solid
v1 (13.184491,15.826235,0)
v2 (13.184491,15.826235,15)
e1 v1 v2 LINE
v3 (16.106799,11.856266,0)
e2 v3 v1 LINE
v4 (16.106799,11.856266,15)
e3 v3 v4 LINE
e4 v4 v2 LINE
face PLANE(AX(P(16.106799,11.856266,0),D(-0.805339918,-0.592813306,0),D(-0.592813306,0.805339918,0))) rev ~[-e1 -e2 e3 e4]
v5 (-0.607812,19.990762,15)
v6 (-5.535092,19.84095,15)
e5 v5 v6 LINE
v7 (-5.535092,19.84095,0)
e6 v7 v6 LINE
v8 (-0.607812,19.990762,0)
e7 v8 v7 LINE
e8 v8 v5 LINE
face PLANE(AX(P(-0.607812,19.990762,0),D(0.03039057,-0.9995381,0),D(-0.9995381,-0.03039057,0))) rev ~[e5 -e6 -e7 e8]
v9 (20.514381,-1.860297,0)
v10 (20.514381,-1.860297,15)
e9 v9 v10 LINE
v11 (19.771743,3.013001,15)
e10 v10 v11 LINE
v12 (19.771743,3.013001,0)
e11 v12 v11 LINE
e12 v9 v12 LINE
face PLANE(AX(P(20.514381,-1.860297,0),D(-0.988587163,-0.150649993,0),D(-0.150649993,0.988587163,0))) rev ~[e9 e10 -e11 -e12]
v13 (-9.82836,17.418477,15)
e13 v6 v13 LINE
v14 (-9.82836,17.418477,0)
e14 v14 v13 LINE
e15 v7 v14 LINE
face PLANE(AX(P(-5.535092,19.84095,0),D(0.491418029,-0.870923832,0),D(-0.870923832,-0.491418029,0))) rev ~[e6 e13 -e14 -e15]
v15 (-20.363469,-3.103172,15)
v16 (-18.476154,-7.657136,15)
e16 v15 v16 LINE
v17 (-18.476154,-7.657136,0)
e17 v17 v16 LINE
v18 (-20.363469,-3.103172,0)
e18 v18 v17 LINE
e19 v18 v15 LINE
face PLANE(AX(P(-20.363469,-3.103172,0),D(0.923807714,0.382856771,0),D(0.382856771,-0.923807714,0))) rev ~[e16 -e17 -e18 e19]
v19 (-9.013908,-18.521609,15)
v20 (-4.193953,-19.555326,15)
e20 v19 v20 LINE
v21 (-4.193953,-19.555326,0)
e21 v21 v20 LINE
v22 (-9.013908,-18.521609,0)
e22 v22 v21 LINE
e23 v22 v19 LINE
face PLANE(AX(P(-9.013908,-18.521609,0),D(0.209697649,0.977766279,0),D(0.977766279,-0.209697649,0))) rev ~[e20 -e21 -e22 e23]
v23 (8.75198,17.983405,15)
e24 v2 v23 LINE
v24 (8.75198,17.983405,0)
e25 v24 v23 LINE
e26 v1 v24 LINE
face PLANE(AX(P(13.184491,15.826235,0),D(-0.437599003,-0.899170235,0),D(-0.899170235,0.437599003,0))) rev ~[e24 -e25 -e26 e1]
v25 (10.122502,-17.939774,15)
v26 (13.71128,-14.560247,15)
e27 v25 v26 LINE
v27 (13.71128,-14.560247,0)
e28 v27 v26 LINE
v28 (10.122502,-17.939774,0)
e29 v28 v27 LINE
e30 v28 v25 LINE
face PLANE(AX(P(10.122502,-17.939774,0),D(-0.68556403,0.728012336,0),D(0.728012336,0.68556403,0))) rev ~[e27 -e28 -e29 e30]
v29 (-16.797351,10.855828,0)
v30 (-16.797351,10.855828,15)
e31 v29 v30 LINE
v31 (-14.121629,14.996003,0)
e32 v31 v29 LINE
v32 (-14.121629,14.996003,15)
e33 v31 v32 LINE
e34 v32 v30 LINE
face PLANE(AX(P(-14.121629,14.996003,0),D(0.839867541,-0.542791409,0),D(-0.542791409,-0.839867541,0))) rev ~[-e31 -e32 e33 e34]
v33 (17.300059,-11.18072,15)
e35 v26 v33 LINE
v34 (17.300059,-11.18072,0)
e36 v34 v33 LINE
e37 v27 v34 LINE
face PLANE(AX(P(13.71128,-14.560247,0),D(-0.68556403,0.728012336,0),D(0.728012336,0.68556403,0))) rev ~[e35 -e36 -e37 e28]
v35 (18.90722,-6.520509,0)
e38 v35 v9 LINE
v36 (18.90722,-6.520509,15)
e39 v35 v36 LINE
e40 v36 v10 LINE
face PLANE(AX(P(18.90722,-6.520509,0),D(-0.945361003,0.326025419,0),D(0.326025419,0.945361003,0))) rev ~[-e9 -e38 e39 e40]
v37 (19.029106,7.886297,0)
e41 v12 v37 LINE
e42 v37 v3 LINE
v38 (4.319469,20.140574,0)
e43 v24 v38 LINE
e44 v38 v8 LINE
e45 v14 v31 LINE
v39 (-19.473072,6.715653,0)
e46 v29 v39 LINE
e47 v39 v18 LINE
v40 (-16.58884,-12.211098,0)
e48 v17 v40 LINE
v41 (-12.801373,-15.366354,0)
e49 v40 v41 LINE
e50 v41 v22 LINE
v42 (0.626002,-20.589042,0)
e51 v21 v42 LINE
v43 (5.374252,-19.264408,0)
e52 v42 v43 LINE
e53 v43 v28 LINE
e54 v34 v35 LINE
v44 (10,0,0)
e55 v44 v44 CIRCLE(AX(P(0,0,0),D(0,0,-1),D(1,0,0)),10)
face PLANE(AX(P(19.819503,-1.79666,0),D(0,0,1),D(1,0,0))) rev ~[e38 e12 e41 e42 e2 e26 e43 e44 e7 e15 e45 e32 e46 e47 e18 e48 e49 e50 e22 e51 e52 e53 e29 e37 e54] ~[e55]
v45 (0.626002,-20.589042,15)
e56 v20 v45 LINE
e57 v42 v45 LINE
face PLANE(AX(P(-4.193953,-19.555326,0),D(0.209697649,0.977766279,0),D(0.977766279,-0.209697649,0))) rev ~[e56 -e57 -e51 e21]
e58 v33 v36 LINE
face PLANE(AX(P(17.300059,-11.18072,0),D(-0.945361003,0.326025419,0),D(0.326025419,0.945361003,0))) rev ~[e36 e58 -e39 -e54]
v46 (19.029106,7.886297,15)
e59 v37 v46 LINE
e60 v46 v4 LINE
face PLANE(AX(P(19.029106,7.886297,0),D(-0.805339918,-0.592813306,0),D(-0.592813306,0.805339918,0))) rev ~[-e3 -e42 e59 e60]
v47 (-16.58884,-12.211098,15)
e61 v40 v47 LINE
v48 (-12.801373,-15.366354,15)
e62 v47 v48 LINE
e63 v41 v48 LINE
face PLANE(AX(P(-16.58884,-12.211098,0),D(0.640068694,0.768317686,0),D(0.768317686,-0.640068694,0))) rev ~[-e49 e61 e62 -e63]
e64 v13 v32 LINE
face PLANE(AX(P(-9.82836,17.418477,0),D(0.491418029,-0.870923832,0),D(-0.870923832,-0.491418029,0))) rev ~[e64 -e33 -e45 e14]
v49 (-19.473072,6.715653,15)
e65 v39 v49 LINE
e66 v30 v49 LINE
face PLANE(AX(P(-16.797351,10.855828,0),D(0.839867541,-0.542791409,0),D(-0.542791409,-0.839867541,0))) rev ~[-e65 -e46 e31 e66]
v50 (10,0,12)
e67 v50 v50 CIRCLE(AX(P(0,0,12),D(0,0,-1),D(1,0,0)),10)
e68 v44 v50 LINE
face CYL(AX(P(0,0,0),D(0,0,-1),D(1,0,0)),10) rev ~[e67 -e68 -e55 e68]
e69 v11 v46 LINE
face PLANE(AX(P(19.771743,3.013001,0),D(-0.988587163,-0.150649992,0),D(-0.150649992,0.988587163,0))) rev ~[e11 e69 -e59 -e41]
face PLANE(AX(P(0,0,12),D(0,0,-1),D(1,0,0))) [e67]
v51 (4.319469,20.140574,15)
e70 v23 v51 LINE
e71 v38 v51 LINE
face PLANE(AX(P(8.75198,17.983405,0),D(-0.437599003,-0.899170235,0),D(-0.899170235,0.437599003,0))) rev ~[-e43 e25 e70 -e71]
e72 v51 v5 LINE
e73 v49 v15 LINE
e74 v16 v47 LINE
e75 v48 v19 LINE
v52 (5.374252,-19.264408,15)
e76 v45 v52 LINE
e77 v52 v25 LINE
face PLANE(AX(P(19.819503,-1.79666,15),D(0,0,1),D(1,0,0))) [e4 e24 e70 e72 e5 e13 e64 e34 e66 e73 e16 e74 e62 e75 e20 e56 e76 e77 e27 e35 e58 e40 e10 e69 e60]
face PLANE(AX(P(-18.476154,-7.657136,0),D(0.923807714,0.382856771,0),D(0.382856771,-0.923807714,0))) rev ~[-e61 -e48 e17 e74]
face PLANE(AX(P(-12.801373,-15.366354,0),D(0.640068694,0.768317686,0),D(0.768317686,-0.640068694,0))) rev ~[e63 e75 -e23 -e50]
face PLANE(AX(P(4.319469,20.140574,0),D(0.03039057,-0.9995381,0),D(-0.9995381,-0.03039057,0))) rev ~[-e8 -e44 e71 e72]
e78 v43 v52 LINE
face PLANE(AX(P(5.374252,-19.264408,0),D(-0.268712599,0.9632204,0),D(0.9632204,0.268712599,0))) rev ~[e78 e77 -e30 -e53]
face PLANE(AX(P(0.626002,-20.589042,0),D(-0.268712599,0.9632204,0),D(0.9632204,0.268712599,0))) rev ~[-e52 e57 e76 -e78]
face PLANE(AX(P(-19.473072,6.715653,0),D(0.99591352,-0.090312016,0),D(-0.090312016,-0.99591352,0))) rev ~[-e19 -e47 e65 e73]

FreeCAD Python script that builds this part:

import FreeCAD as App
import Part
import Sketcher
from FreeCAD import Vector
Q = App.Units.Quantity

doc = App.newDocument("Part")
body = doc.addObject("PartDesign::Body", "Body")

# Sketch on XY plane
sketch1 = body.newObject("Sketcher::SketchObject", "Sketch")
sketch1.AttachmentSupport = (doc.getObject("XY_Plane"), [""])
sketch1.MapMode = "FlatFace"
sketch1.addGeometry([
    Part.LineSegment(Vector(18.90722, -6.520509, 0), Vector(20.514381, -1.860297, 0)),  # 0
    Part.LineSegment(Vector(20.514381, -1.860297, 0), Vector(19.771743, 3.013001, 0)),  # 1
    Part.LineSegment(Vector(19.771743, 3.013001, 0), Vector(19.029106, 7.886297, 0)),  # 2
    Part.LineSegment(Vector(19.029106, 7.886297, 0), Vector(16.106799, 11.856266, 0)),  # 3
    Part.LineSegment(Vector(16.106799, 11.856266, 0), Vector(13.184491, 15.826235, 0)),  # 4
    Part.LineSegment(Vector(13.184491, 15.826235, 0), Vector(8.75198, 17.983405, 0)),  # 5
    Part.LineSegment(Vector(8.75198, 17.983405, 0), Vector(4.319469, 20.140574, 0)),  # 6
    Part.LineSegment(Vector(4.319469, 20.140574, 0), Vector(-0.607812, 19.990762, 0)),  # 7
    Part.LineSegment(Vector(-0.607812, 19.990762, 0), Vector(-5.535092, 19.84095, 0)),  # 8
    Part.LineSegment(Vector(-5.535092, 19.84095, 0), Vector(-9.82836, 17.418477, 0)),  # 9
    Part.LineSegment(Vector(-9.82836, 17.418477, 0), Vector(-14.121629, 14.996003, 0)),  # 10
    Part.LineSegment(Vector(-14.121629, 14.996003, 0), Vector(-16.797351, 10.855828, 0)),  # 11
    Part.LineSegment(Vector(-16.797351, 10.855828, 0), Vector(-19.473072, 6.715653, 0)),  # 12
    Part.LineSegment(Vector(-19.473072, 6.715653, 0), Vector(-20.363469, -3.103172, 0)),  # 13
    Part.LineSegment(Vector(-20.363469, -3.103172, 0), Vector(-18.476154, -7.657136, 0)),  # 14
    Part.LineSegment(Vector(-18.476154, -7.657136, 0), Vector(-16.58884, -12.211098, 0)),  # 15
    Part.LineSegment(Vector(-16.58884, -12.211098, 0), Vector(-12.801373, -15.366354, 0)),  # 16
    Part.LineSegment(Vector(-12.801373, -15.366354, 0), Vector(-9.013908, -18.521609, 0)),  # 17
    Part.LineSegment(Vector(-9.013908, -18.521609, 0), Vector(-4.193953, -19.555326, 0)),  # 18
    Part.LineSegment(Vector(-4.193953, -19.555326, 0), Vector(0.626002, -20.589042, 0)),  # 19
    Part.LineSegment(Vector(0.626002, -20.589042, 0), Vector(5.374252, -19.264408, 0)),  # 20
    Part.LineSegment(Vector(5.374252, -19.264408, 0), Vector(10.122502, -17.939774, 0)),  # 21
    Part.LineSegment(Vector(10.122502, -17.939774, 0), Vector(13.71128, -14.560247, 0)),  # 22
    Part.LineSegment(Vector(13.71128, -14.560247, 0), Vector(17.300059, -11.18072, 0)),  # 23
    Part.LineSegment(Vector(17.300059, -11.18072, 0), Vector(18.90722, -6.520509, 0)),  # 24
], False)
sketch1.addConstraint([
    Sketcher.Constraint("Coincident", 0, 2, 1, 1),
    Sketcher.Constraint("Coincident", 1, 2, 2, 1),
    Sketcher.Constraint("Coincident", 2, 2, 3, 1),
    Sketcher.Constraint("Coincident", 3, 2, 4, 1),
    Sketcher.Constraint("Coincident", 4, 2, 5, 1),
    Sketcher.Constraint("Coincident", 5, 2, 6, 1),
    Sketcher.Constraint("Coincident", 6, 2, 7, 1),
    Sketcher.Constraint("Coincident", 7, 2, 8, 1),
    Sketcher.Constraint("Coincident", 8, 2, 9, 1),
    Sketcher.Constraint("Coincident", 9, 2, 10, 1),
    Sketcher.Constraint("Coincident", 10, 2, 11, 1),
    Sketcher.Constraint("Coincident", 11, 2, 12, 1),
    Sketcher.Constraint("Coincident", 12, 2, 13, 1),
    Sketcher.Constraint("Coincident", 13, 2, 14, 1),
    Sketcher.Constraint("Coincident", 14, 2, 15, 1),
    Sketcher.Constraint("Coincident", 15, 2, 16, 1),
    Sketcher.Constraint("Coincident", 16, 2, 17, 1),
    Sketcher.Constraint("Coincident", 17, 2, 18, 1),
    Sketcher.Constraint("Coincident", 18, 2, 19, 1),
    Sketcher.Constraint("Coincident", 19, 2, 20, 1),
    Sketcher.Constraint("Coincident", 20, 2, 21, 1),
    Sketcher.Constraint("Coincident", 21, 2, 22, 1),
    Sketcher.Constraint("Coincident", 22, 2, 23, 1),
    Sketcher.Constraint("Coincident", 23, 2, 24, 1),
    Sketcher.Constraint("Coincident", 24, 2, 0, 1),
    Sketcher.Constraint("Parallel", 1, 2),
    Sketcher.Constraint("Parallel", 3, 4),
    Sketcher.Constraint("Parallel", 5, 6),
    Sketcher.Constraint("Parallel", 7, 8),
    Sketcher.Constraint("Parallel", 9, 10),
    Sketcher.Constraint("Parallel", 11, 12),
    Sketcher.Constraint("Parallel", 14, 15),
    Sketcher.Constraint("Parallel", 16, 17),
    Sketcher.Constraint("Parallel", 18, 19),
    Sketcher.Constraint("Parallel", 20, 21),
    Sketcher.Constraint("Parallel", 22, 23),
    Sketcher.Constraint("Parallel", 0, 24),
    Sketcher.Constraint("Equal", 0, 1),
    Sketcher.Constraint("Equal", 0, 2),
    Sketcher.Constraint("Equal", 2, 3),
    Sketcher.Constraint("Equal", 3, 4),
    Sketcher.Constraint("Equal", 4, 5),
    Sketcher.Constraint("Equal", 5, 6),
    Sketcher.Constraint("Equal", 6, 7),
    Sketcher.Constraint("Equal", 7, 8),
    Sketcher.Constraint("Equal", 8, 9),
    Sketcher.Constraint("Equal", 9, 10),
    Sketcher.Constraint("Equal", 10, 11),
    Sketcher.Constraint("Equal", 11, 12),
    Sketcher.Constraint("Equal", 12, 14),
    Sketcher.Constraint("Equal", 14, 15),
    Sketcher.Constraint("Equal", 15, 16),
    Sketcher.Constraint("Equal", 16, 17),
    Sketcher.Constraint("Equal", 17, 18),
    Sketcher.Constraint("Equal", 18, 19),
    Sketcher.Constraint("Equal", 19, 20),
    Sketcher.Constraint("Equal", 20, 21),
    Sketcher.Constraint("Equal", 21, 22),
    Sketcher.Constraint("Equal", 22, 23),
    Sketcher.Constraint("Equal", 23, 24),
    Sketcher.Constraint("Angle", 22, Q("43.279981 deg")),
    Sketcher.Constraint("DistanceY", -1, 1, 1, 2, Q("3.013001 mm")),
    Sketcher.Constraint("DistanceX", -1, 1, 19, 2, Q("0.626002 mm")),
    Sketcher.Constraint("DistanceY", 13, 2, 11, 2, Q("13.959001 mm")),
    Sketcher.Constraint("DistanceX", -1, 1, 3, 2, Q("16.106799 mm")),
    Sketcher.Constraint("DistanceY", 15, 2, -1, 1, Q("12.211098 mm")),
    Sketcher.Constraint("DistanceY", 0, 2, 1, 2, Q("4.873298 mm")),
    Sketcher.Constraint("DistanceX", 5, 2, 0, 2, Q("11.762401 mm")),
    Sketcher.Constraint("DistanceX", 10, 2, 6, 2, Q("18.441098 mm")),
    Sketcher.Constraint("DistanceY", 10, 2, 5, 2, Q("2.987402 mm")),
    Sketcher.Constraint("DistanceY", 15, 2, 10, 2, Q("27.207102 mm")),
    Sketcher.Constraint("DistanceX", 12, 2, 16, 2, Q("6.671699 mm")),
    Sketcher.Constraint("DistanceX", 14, 2, 18, 2, Q("14.282201 mm")),
    Sketcher.Constraint("DistanceY", 20, 2, 17, 2, Q("0.742799 mm")),
    Sketcher.Constraint("DistanceX", 19, 2, 21, 2, Q("9.4965 mm")),
])
pad1 = body.newObject("PartDesign::Pad", "Pad")
pad1.Profile = sketch1
pad1.Length = 15

# Sketch on XY plane
sketch2 = body.newObject("Sketcher::SketchObject", "Sketch001")
sketch2.AttachmentSupport = (doc.getObject("XY_Plane"), [""])
sketch2.MapMode = "FlatFace"
sketch2.addGeometry(Part.Circle(Vector(0, 0, 0), Vector(0, 0, 1), 10), False)
sketch2.addConstraint([
    Sketcher.Constraint("Coincident", 0, 3, -1, 1),
    Sketcher.Constraint("Diameter", 0, Q("20 mm")),
])
pocket1 = body.newObject("PartDesign::Pocket", "Pocket")
pocket1.Profile = sketch2
pocket1.Length = 12
pocket1.Reversed = True

doc.recompute()
